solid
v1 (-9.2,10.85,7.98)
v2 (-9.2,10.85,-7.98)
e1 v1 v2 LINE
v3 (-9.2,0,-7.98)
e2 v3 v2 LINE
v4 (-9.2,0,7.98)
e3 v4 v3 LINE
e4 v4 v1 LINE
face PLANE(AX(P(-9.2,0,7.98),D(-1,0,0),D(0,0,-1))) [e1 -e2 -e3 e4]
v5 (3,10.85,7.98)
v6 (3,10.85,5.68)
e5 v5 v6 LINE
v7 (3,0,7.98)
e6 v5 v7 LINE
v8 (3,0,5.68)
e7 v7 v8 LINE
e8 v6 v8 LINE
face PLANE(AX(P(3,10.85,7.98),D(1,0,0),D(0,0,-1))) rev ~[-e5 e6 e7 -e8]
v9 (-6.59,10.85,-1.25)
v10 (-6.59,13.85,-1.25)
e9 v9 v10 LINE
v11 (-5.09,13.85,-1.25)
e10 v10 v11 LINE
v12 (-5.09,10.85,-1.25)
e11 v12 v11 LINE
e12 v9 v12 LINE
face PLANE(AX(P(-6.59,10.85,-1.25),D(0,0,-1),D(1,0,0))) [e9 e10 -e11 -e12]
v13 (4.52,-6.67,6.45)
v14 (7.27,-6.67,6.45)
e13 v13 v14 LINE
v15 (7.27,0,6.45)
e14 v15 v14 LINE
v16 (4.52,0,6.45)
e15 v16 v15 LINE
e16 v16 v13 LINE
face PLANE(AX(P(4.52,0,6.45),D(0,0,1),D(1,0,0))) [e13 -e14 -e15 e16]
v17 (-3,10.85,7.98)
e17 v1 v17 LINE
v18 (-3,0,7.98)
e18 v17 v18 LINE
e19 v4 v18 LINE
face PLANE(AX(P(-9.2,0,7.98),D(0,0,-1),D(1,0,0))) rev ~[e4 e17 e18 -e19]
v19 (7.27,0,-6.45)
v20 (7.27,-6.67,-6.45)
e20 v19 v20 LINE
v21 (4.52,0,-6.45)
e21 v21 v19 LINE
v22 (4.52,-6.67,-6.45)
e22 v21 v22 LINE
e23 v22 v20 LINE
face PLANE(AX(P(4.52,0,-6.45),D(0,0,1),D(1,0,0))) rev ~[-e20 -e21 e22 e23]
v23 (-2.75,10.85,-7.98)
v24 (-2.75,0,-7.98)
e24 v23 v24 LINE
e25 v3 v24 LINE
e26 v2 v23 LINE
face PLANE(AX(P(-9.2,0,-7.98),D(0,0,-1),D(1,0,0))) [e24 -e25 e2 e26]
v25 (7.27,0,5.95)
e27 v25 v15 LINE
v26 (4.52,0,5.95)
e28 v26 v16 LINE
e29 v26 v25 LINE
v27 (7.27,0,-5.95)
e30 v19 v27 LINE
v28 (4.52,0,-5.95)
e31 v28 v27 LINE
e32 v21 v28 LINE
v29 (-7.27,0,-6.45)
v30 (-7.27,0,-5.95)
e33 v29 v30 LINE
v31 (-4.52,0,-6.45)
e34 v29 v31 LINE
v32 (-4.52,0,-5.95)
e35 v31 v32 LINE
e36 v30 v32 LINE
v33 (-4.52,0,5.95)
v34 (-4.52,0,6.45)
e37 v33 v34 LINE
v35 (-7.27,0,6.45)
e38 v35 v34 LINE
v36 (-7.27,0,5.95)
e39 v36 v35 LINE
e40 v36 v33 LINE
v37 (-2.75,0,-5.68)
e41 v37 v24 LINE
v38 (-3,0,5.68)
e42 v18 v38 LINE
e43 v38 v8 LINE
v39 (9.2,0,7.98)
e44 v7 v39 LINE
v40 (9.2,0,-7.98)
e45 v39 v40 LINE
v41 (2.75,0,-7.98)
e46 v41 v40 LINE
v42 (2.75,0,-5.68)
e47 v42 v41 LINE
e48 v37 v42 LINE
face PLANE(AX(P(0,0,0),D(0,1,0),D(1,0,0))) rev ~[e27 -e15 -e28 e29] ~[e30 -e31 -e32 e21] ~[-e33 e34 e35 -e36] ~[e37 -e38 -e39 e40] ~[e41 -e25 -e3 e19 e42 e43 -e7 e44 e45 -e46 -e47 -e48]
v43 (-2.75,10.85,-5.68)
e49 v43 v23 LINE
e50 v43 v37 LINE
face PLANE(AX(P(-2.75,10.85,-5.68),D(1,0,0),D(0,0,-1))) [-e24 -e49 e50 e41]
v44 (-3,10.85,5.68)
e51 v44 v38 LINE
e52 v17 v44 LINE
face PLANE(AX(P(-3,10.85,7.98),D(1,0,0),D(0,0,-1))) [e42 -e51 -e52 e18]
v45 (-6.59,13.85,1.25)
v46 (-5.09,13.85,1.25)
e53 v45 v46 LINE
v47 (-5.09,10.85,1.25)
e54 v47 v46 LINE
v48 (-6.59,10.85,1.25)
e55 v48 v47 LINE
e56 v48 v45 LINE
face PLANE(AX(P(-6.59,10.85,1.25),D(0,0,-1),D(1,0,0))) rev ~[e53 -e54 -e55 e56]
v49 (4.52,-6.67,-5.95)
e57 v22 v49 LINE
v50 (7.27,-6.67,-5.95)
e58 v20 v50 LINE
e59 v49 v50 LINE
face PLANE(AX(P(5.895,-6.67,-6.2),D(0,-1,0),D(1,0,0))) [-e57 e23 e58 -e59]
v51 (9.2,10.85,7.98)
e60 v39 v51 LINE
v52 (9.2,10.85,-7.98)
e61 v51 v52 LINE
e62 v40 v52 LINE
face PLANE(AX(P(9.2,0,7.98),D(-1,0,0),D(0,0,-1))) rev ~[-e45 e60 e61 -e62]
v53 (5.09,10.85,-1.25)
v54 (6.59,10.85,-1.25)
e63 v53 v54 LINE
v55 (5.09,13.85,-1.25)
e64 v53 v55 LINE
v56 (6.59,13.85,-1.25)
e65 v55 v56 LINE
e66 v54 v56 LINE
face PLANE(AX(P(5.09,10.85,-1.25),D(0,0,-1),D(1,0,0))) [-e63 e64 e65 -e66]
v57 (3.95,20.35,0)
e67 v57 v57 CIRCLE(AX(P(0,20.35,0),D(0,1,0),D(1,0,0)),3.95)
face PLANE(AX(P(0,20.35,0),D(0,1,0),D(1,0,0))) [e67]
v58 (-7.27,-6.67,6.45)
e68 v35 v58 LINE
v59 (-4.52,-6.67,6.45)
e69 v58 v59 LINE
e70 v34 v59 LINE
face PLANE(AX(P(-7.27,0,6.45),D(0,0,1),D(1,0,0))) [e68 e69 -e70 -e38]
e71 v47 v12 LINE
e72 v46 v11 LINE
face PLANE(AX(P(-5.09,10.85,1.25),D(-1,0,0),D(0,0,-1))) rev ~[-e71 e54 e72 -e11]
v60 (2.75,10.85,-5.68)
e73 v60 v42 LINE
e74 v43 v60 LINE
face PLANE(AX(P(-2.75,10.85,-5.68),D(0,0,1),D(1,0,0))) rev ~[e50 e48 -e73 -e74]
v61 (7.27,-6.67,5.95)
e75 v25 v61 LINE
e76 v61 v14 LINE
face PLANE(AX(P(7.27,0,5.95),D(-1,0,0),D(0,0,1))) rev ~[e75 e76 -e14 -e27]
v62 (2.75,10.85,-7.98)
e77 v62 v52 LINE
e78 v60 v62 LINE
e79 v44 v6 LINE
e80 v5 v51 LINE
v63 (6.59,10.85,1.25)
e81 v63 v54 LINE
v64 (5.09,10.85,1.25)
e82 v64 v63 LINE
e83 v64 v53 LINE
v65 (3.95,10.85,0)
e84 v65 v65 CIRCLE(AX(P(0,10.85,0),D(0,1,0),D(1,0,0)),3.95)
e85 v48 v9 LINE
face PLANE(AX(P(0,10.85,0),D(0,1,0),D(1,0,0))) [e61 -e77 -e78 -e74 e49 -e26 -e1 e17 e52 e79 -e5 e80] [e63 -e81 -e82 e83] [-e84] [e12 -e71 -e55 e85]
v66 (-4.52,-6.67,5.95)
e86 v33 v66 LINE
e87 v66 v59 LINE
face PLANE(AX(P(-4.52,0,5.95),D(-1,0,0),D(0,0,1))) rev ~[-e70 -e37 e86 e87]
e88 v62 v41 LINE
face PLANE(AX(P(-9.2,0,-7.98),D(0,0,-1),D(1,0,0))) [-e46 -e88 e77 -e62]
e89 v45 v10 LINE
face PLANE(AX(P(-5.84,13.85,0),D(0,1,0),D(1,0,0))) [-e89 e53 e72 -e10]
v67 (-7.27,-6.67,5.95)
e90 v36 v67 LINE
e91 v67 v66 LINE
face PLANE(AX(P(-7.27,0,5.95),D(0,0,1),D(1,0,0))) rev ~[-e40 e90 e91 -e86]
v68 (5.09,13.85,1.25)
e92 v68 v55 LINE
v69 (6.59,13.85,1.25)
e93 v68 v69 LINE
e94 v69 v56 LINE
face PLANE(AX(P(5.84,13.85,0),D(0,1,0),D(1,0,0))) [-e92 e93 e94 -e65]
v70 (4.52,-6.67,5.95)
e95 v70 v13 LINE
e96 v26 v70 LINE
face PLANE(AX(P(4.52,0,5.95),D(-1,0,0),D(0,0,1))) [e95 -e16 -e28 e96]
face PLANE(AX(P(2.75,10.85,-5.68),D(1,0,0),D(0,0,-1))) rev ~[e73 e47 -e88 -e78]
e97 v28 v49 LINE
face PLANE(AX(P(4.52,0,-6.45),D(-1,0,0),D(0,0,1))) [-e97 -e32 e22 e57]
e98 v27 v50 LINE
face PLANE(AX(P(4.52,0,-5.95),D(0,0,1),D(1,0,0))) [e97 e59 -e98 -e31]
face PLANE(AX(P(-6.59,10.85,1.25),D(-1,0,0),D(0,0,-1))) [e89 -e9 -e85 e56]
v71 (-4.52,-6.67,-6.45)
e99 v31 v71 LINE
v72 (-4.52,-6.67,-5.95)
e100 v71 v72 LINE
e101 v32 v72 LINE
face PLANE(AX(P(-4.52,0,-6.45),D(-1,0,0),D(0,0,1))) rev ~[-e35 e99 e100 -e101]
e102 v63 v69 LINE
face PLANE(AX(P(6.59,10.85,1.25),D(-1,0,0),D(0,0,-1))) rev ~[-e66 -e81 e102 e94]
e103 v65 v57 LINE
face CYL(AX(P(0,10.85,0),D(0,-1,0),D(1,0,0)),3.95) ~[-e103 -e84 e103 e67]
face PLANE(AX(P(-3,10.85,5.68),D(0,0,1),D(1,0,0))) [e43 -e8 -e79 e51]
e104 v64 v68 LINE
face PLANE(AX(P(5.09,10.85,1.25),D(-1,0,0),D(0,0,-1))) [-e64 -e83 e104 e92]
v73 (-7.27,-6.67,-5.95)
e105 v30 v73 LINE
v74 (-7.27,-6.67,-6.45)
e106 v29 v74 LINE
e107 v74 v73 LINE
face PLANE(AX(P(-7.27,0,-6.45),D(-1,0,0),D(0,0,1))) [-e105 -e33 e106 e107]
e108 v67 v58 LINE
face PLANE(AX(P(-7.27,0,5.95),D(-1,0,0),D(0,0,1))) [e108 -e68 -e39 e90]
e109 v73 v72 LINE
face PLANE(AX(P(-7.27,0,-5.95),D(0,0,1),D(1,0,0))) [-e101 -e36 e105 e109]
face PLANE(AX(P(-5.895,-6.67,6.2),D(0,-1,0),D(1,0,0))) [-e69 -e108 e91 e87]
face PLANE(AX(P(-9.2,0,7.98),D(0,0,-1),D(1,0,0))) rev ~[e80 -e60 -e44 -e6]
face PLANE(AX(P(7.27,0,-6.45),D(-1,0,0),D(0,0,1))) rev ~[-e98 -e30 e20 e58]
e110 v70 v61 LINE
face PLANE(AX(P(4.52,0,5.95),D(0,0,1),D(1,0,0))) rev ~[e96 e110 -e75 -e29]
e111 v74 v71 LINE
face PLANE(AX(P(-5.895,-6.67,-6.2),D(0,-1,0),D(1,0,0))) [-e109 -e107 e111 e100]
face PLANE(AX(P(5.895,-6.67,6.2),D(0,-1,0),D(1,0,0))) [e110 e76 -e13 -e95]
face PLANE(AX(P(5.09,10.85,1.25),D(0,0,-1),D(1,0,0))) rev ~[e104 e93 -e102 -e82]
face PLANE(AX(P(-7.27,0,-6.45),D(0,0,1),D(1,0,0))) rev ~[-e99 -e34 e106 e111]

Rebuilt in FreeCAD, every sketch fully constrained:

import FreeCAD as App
import Part
import Sketcher

V = App.Vector

doc = App.newDocument("Part")
body = doc.addObject("PartDesign::Body", "Body")

# Sketch on XZ plane
sketch1 = body.newObject("Sketcher::SketchObject", "Sketch")
sketch1.AttachmentSupport = (doc.getObject("XZ_Plane"), [""])
sketch1.MapMode = "FlatFace"
sketch1.addGeometry([
    Part.LineSegment(V(-9.2, -7.98, 0), V(-9.2, 7.98, 0)),
    Part.LineSegment(V(-9.2, 7.98, 0), V(9.2, 7.98, 0)),
    Part.LineSegment(V(9.2, 7.98, 0), V(9.2, -7.98, 0)),
    Part.LineSegment(V(9.2, -7.98, 0), V(-9.2, -7.98, 0)),
], False)
sketch1.addConstraint([
    Sketcher.Constraint("Coincident", 0, 2, 1, 1),
    Sketcher.Constraint("Coincident", 1, 2, 2, 1),
    Sketcher.Constraint("Coincident", 2, 2, 3, 1),
    Sketcher.Constraint("Coincident", 3, 2, 0, 1),
    Sketcher.Constraint("Vertical", 0),
    Sketcher.Constraint("Horizontal", 1),
    Sketcher.Constraint("Vertical", 2),
    Sketcher.Constraint("Horizontal", 3),
    Sketcher.Constraint("Symmetric", 0, 2, 2, 2, -1, 1),
    Sketcher.Constraint("DistanceX", 1, 1, 1, 2, 18.4),
    Sketcher.Constraint("DistanceY", 0, 1, 0, 2, 15.96),
])
pad1 = body.newObject("PartDesign::Pad", "Pad")
pad1.Profile = sketch1
pad1.Length = 10.85
pad1.Reversed = True

# Sketch on XZ plane
sketch2 = body.newObject("Sketcher::SketchObject", "Sketch001")
sketch2.AttachmentSupport = (doc.getObject("XZ_Plane"), [""])
sketch2.MapMode = "FlatFace"
sketch2.addGeometry([
    Part.LineSegment(V(-7.27, -5.95, 0), V(-7.27, -6.45, 0)),  # 0
    Part.LineSegment(V(-7.27, -6.45, 0), V(-4.52, -6.45, 0)),  # 1
    Part.LineSegment(V(-4.52, -6.45, 0), V(-4.52, -5.95, 0)),  # 2
    Part.LineSegment(V(-4.52, -5.95, 0), V(-7.27, -5.95, 0)),  # 3
    Part.LineSegment(V(-7.27, 6.45, 0), V(-7.27, 5.95, 0)),  # 4
    Part.LineSegment(V(-7.27, 5.95, 0), V(-4.52, 5.95, 0)),  # 5
    Part.LineSegment(V(-4.52, 5.95, 0), V(-4.52, 6.45, 0)),  # 6
    Part.LineSegment(V(-4.52, 6.45, 0), V(-7.27, 6.45, 0)),  # 7
    Part.LineSegment(V(4.52, -5.95, 0), V(4.52, -6.45, 0)),  # 8
    Part.LineSegment(V(4.52, -6.45, 0), V(7.27, -6.45, 0)),  # 9
    Part.LineSegment(V(7.27, -6.45, 0), V(7.27, -5.95, 0)),  # 10
    Part.LineSegment(V(7.27, -5.95, 0), V(4.52, -5.95, 0)),  # 11
    Part.LineSegment(V(4.52, 6.45, 0), V(4.52, 5.95, 0)),  # 12
    Part.LineSegment(V(4.52, 5.95, 0), V(7.27, 5.95, 0)),  # 13
    Part.LineSegment(V(7.27, 5.95, 0), V(7.27, 6.45, 0)),  # 14
    Part.LineSegment(V(7.27, 6.45, 0), V(4.52, 6.45, 0)),  # 15
], False)
sketch2.addConstraint([
    Sketcher.Constraint("Coincident", 0, 2, 1, 1),
    Sketcher.Constraint("Coincident", 1, 2, 2, 1),
    Sketcher.Constraint("Coincident", 2, 2, 3, 1),
    Sketcher.Constraint("Coincident", 3, 2, 0, 1),
    Sketcher.Constraint("Coincident", 4, 2, 5, 1),
    Sketcher.Constraint("Coincident", 5, 2, 6, 1),
    Sketcher.Constraint("Coincident", 6, 2, 7, 1),
    Sketcher.Constraint("Coincident", 7, 2, 4, 1),
    Sketcher.Constraint("Coincident", 8, 2, 9, 1),
    Sketcher.Constraint("Coincident", 9, 2, 10, 1),
    Sketcher.Constraint("Coincident", 10, 2, 11, 1),
    Sketcher.Constraint("Coincident", 11, 2, 8, 1),
    Sketcher.Constraint("Coincident", 12, 2, 13, 1),
    Sketcher.Constraint("Coincident", 13, 2, 14, 1),
    Sketcher.Constraint("Coincident", 14, 2, 15, 1),
    Sketcher.Constraint("Coincident", 15, 2, 12, 1),
    Sketcher.Constraint("Vertical", 0),
    Sketcher.Constraint("Horizontal", 1),
    Sketcher.Constraint("Vertical", 2),
    Sketcher.Constraint("Horizontal", 3),
    Sketcher.Constraint("Vertical", 4),
    Sketcher.Constraint("Horizontal", 5),
    Sketcher.Constraint("Vertical", 6),
    Sketcher.Constraint("Horizontal", 7),
    Sketcher.Constraint("Vertical", 8),
    Sketcher.Constraint("Horizontal", 9),
    Sketcher.Constraint("Vertical", 10),
    Sketcher.Constraint("Horizontal", 11),
    Sketcher.Constraint("Vertical", 12),
    Sketcher.Constraint("Horizontal", 13),
    Sketcher.Constraint("Vertical", 14),
    Sketcher.Constraint("Horizontal", 15),
    Sketcher.Constraint("Symmetric", 6, 2, 8, 2, -1, 1),
    Sketcher.Constraint("Symmetric", 4, 2, 10, 2, -1, 1),
    Sketcher.Constraint("Symmetric", 2, 2, 12, 2, -1, 1),
    Sketcher.Constraint("Symmetric", 0, 2, 14, 2, -1, 1),
    Sketcher.Constraint("Symmetric", 1, 2, 8, 2, -2),
    Sketcher.Constraint("Symmetric", 3, 2, 10, 2, -2),
    Sketcher.Constraint("DistanceY", 0, 2, 0, 1, 0.5),
    Sketcher.Constraint("DistanceX", 1, 1, 1, 2, 2.75),
    Sketcher.Constraint("DistanceY", 3, 2, 4, 2, 11.9),
    Sketcher.Constraint("DistanceX", 0, 2, -1, 1, 7.27),
])
pad2 = body.newObject("PartDesign::Pad", "Pad001")
pad2.Profile = sketch2
pad2.Length = 6.67

# Sketch on XZ plane
sketch3 = body.newObject("Sketcher::SketchObject", "Sketch002")
sketch3.AttachmentSupport = (doc.getObject("XZ_Plane"), [""])
sketch3.MapMode = "FlatFace"
sketch3.AttachmentOffset = App.Placement(V(0, 0, -10.85), App.Rotation())
sketch3.addGeometry([
    Part.LineSegment(V(-2.75, -7.98, 0), V(-2.75, -5.68, 0)),  # 0
    Part.LineSegment(V(-2.75, -5.68, 0), V(2.75, -5.68, 0)),  # 1
    Part.LineSegment(V(2.75, -5.68, 0), V(2.75, -7.98, 0)),  # 2
    Part.LineSegment(V(2.75, -7.98, 0), V(-2.75, -7.98, 0)),  # 3
    Part.LineSegment(V(-3, 5.68, 0), V(-3, 7.98, 0)),  # 4
    Part.LineSegment(V(-3, 7.98, 0), V(3, 7.98, 0)),  # 5
    Part.LineSegment(V(3, 7.98, 0), V(3, 5.68, 0)),  # 6
    Part.LineSegment(V(3, 5.68, 0), V(-3, 5.68, 0)),  # 7
], False)
sketch3.addConstraint([
    Sketcher.Constraint("Coincident", 0, 2, 1, 1),
    Sketcher.Constraint("Coincident", 1, 2, 2, 1),
    Sketcher.Constraint("Coincident", 2, 2, 3, 1),
    Sketcher.Constraint("Coincident", 3, 2, 0, 1),
    Sketcher.Constraint("Coincident", 4, 2, 5, 1),
    Sketcher.Constraint("Coincident", 5, 2, 6, 1),
    Sketcher.Constraint("Coincident", 6, 2, 7, 1),
    Sketcher.Constraint("Coincident", 7, 2, 4, 1),
    Sketcher.Constraint("Vertical", 0),
    Sketcher.Constraint("Horizontal", 1),
    Sketcher.Constraint("Vertical", 2),
    Sketcher.Constraint("Horizontal", 3),
    Sketcher.Constraint("Vertical", 4),
    Sketcher.Constraint("Horizontal", 5),
    Sketcher.Constraint("Vertical", 6),
    Sketcher.Constraint("Horizontal", 7),
    Sketcher.Constraint("Equal", 2, 4),
    Sketcher.Constraint("DistanceX", 5, 1, 5, 2, 6.0),
    Sketcher.Constraint("DistanceX", 1, 1, 1, 2, 5.5),
    Sketcher.Constraint("DistanceY", 0, 1, 0, 2, 2.3),
    Sketcher.Constraint("DistanceX", 4, 2, -1, 1, 3.0),
    Sketcher.Constraint("DistanceX", 0, 2, -1, 1, 2.75),
    Sketcher.Constraint("DistanceY", 0, 2, -1, 1, 5.68),
    Sketcher.Constraint("DistanceY", -1, 1, 4, 2, 7.98),
])
pocket1 = body.newObject("PartDesign::Pocket", "Pocket")
pocket1.Profile = sketch3
pocket1.Type = "ThroughAll"
pocket1.Reversed = True

# Sketch on XZ plane
sketch4 = body.newObject("Sketcher::SketchObject", "Sketch003")
sketch4.AttachmentSupport = (doc.getObject("XZ_Plane"), [""])
sketch4.MapMode = "FlatFace"
sketch4.AttachmentOffset = App.Placement(V(0, 0, -10.85), App.Rotation())
sketch4.addGeometry(Part.Circle(V(0, 0, 0), V(0, 0, 1), 3.95), False)
sketch4.addConstraint([
    Sketcher.Constraint("Coincident", 0, 3, -1, 1),
    Sketcher.Constraint("Diameter", 0, 7.9),
])
pad3 = body.newObject("PartDesign::Pad", "Pad002")
pad3.Profile = sketch4
pad3.Length = 9.5
pad3.Reversed = True

# Sketch on XZ plane
sketch5 = body.newObject("Sketcher::SketchObject", "Sketch004")
sketch5.AttachmentSupport = (doc.getObject("XZ_Plane"), [""])
sketch5.MapMode = "FlatFace"
sketch5.AttachmentOffset = App.Placement(V(0, 0, -10.85), App.Rotation())
sketch5.addGeometry([
    Part.LineSegment(V(-6.59, -1.25, 0), V(-6.59, 1.25, 0)),  # 0
    Part.LineSegment(V(-6.59, 1.25, 0), V(-5.09, 1.25, 0)),  # 1
    Part.LineSegment(V(-5.09, 1.25, 0), V(-5.09, -1.25, 0)),  # 2
    Part.LineSegment(V(-5.09, -1.25, 0), V(-6.59, -1.25, 0)),  # 3
    Part.LineSegment(V(5.09, -1.25, 0), V(5.09, 1.25, 0)),  # 4
    Part.LineSegment(V(5.09, 1.25, 0), V(6.59, 1.25, 0)),  # 5
    Part.LineSegment(V(6.59, 1.25, 0), V(6.59, -1.25, 0)),  # 6
    Part.LineSegment(V(6.59, -1.25, 0), V(5.09, -1.25, 0)),  # 7
], False)
sketch5.addConstraint([
    Sketcher.Constraint("Coincident", 0, 2, 1, 1),
    Sketcher.Constraint("Coincident", 1, 2, 2, 1),
    Sketcher.Constraint("Coincident", 2, 2, 3, 1),
    Sketcher.Constraint("Coincident", 3, 2, 0, 1),
    Sketcher.Constraint("Coincident", 4, 2, 5, 1),
    Sketcher.Constraint("Coincident", 5, 2, 6, 1),
    Sketcher.Constraint("Coincident", 6, 2, 7, 1),
    Sketcher.Constraint("Coincident", 7, 2, 4, 1),
    Sketcher.Constraint("Vertical", 0),
    Sketcher.Constraint("Horizontal", 1),
    Sketcher.Constraint("Vertical", 2),
    Sketcher.Constraint("Horizontal", 3),
    Sketcher.Constraint("Vertical", 4),
    Sketcher.Constraint("Horizontal", 5),
    Sketcher.Constraint("Vertical", 6),
    Sketcher.Constraint("Horizontal", 7),
    Sketcher.Constraint("Symmetric", 2, 2, 4, 2, -1, 1),
    Sketcher.Constraint("Symmetric", 0, 2, 6, 2, -1, 1),
    Sketcher.Constraint("Horizontal", 1, 2, 4, 2),
    Sketcher.Constraint("DistanceX", 1, 1, 1, 2, 1.5),
    Sketcher.Constraint("DistanceY", 0, 1, 0, 2, 2.5),
    Sketcher.Constraint("DistanceX", 0, 2, -1, 1, 6.59),
])
pad4 = body.newObject("PartDesign::Pad", "Pad003")
pad4.Profile = sketch5
pad4.Length = 3
pad4.Reversed = True

doc.recompute()
